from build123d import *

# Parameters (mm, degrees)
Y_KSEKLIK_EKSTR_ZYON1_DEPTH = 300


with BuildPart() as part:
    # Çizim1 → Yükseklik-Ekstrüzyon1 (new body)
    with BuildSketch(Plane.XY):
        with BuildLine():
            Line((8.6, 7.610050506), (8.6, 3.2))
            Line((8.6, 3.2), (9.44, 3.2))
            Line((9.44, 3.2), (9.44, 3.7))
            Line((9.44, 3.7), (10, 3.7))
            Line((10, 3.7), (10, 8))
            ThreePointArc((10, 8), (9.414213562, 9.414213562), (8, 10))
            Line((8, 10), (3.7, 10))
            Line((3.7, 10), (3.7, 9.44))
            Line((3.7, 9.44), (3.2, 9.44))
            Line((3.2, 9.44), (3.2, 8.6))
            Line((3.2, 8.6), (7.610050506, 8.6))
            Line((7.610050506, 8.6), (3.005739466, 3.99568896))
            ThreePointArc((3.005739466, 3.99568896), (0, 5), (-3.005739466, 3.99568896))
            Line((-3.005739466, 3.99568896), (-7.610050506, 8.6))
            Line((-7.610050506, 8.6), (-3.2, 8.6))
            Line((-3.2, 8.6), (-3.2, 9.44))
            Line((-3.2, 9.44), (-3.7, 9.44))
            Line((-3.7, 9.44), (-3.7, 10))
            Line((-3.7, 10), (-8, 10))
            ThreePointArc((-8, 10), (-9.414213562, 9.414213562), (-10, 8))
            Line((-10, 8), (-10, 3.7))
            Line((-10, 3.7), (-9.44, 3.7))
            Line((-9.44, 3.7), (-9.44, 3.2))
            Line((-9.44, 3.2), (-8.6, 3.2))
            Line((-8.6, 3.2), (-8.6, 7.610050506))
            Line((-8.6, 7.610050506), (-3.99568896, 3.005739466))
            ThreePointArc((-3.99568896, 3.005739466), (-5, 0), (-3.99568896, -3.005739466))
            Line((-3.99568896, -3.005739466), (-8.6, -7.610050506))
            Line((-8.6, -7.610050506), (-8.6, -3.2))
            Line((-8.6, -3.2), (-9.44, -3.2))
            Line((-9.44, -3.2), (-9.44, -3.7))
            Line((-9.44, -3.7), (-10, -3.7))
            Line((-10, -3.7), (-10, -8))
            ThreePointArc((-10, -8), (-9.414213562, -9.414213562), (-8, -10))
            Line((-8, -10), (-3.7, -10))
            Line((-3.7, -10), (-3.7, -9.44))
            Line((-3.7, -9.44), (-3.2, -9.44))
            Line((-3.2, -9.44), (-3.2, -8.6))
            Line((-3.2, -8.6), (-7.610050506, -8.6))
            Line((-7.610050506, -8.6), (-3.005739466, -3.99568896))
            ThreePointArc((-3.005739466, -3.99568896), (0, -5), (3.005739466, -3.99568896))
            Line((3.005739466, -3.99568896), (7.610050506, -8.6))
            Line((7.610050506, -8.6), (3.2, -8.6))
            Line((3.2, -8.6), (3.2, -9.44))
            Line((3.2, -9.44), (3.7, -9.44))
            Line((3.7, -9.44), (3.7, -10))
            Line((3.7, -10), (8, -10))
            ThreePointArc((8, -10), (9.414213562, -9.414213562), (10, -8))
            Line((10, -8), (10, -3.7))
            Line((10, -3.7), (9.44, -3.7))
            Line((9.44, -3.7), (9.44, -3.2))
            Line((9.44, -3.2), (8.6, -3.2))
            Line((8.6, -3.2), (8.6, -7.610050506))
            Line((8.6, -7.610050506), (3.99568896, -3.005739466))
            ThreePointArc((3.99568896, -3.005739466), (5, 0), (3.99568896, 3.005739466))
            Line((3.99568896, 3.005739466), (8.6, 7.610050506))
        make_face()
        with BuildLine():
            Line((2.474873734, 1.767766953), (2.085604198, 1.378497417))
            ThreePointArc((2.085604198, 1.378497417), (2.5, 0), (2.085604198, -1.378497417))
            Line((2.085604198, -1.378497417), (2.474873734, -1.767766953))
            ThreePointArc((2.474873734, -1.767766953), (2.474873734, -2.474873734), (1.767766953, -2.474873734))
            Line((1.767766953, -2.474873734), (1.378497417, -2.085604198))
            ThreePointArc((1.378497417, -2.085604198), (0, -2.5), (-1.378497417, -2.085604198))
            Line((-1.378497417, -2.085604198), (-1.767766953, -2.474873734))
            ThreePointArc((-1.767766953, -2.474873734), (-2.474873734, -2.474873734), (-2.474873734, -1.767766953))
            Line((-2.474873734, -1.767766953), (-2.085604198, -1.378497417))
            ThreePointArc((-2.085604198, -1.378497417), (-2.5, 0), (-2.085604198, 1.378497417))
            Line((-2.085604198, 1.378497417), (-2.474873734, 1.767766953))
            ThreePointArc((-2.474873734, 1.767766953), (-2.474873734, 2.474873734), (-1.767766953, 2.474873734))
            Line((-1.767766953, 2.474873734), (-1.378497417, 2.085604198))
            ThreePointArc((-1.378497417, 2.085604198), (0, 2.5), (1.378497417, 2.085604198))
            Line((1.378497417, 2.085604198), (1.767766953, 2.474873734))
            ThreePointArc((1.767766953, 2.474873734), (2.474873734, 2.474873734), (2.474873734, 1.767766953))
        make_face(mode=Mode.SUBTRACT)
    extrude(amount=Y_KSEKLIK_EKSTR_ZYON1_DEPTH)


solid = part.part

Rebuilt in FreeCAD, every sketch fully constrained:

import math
import FreeCAD as App
import Part
import Sketcher
Q = App.Units.Quantity

doc = App.newDocument("Part")
params = doc.addObject("Spreadsheet::Sheet", "Params")
for row, (alias, value) in enumerate([
    ("sketch1_radius", "2 mm"),
    ("sketch1_radius2", "5 mm"),
    ("sketch1_radius3", "0.5 mm"),
    ("sketch1_radius4", "2.5 mm"),
    ("sketch1_width", "4.3 mm"),
    ("pad1_length", "300 mm"),
], start=1):
    params.set(f"A{row}", alias)
    params.set(f"B{row}", "=" + value)
    params.setAlias(f"B{row}", alias)

body = doc.addObject("PartDesign::Body", "Body")

# Sketch on XY plane
sketch1 = body.newObject("Sketcher::SketchObject", "Sketch")
sketch1.AttachmentSupport = (doc.getObject("XY_Plane"), [""])
sketch1.MapMode = "FlatFace"
sketch1.addGeometry([
    Part.LineSegment(App.Vector(8.6, 7.6, 0), App.Vector(8.6, 3.2, 0)),  # 0
    Part.LineSegment(App.Vector(8.6, 3.2, 0), App.Vector(9.4, 3.2, 0)),  # 1
    Part.LineSegment(App.Vector(9.4, 3.2, 0), App.Vector(9.4, 3.7, 0)),  # 2
    Part.LineSegment(App.Vector(9.4, 3.7, 0), App.Vector(10, 3.7, 0)),  # 3
    Part.LineSegment(App.Vector(10, 3.7, 0), App.Vector(10, 8, 0)),  # 4
    Part.ArcOfCircle(Part.Circle(App.Vector(8, 8, 0), App.Vector(0, 0, 1), 2), math.radians(0), math.radians(90)),  # 5
    Part.LineSegment(App.Vector(8, 10, 0), App.Vector(3.7, 10, 0)),  # 6
    Part.LineSegment(App.Vector(3.7, 10, 0), App.Vector(3.7, 9.4, 0)),  # 7
    Part.LineSegment(App.Vector(3.7, 9.4, 0), App.Vector(3.2, 9.4, 0)),  # 8
    Part.LineSegment(App.Vector(3.2, 9.4, 0), App.Vector(3.2, 8.6, 0)),  # 9
    Part.LineSegment(App.Vector(3.2, 8.6, 0), App.Vector(7.6, 8.6, 0)),  # 10
    Part.LineSegment(App.Vector(7.6, 8.6, 0), App.Vector(3, 4, 0)),  # 11
    Part.ArcOfCircle(Part.Circle(App.Vector(0, 0, 0), App.Vector(0, 0, 1), 5), math.radians(53), math.radians(127)),  # 12
    Part.LineSegment(App.Vector(-3, 4, 0), App.Vector(-7.6, 8.6, 0)),  # 13
    Part.LineSegment(App.Vector(-7.6, 8.6, 0), App.Vector(-3.2, 8.6, 0)),  # 14
    Part.LineSegment(App.Vector(-3.2, 8.6, 0), App.Vector(-3.2, 9.4, 0)),  # 15
    Part.LineSegment(App.Vector(-3.2, 9.4, 0), App.Vector(-3.7, 9.4, 0)),  # 16
    Part.LineSegment(App.Vector(-3.7, 9.4, 0), App.Vector(-3.7, 10, 0)),  # 17
    Part.LineSegment(App.Vector(-3.7, 10, 0), App.Vector(-8, 10, 0)),  # 18
    Part.ArcOfCircle(Part.Circle(App.Vector(-8, 8, 0), App.Vector(0, 0, 1), 2), math.radians(90), math.radians(180)),  # 19
    Part.LineSegment(App.Vector(-10, 8, 0), App.Vector(-10, 3.7, 0)),  # 20
    Part.LineSegment(App.Vector(-10, 3.7, 0), App.Vector(-9.4, 3.7, 0)),  # 21
    Part.LineSegment(App.Vector(-9.4, 3.7, 0), App.Vector(-9.4, 3.2, 0)),  # 22
    Part.LineSegment(App.Vector(-9.4, 3.2, 0), App.Vector(-8.6, 3.2, 0)),  # 23
    Part.LineSegment(App.Vector(-8.6, 3.2, 0), App.Vector(-8.6, 7.6, 0)),  # 24
    Part.LineSegment(App.Vector(-8.6, 7.6, 0), App.Vector(-4, 3, 0)),  # 25
    Part.ArcOfCircle(Part.Circle(App.Vector(0, 0, 0), App.Vector(0, 0, 1), 5), math.radians(143), math.radians(217)),  # 26
    Part.LineSegment(App.Vector(-4, -3, 0), App.Vector(-8.6, -7.6, 0)),  # 27
    Part.LineSegment(App.Vector(-8.6, -7.6, 0), App.Vector(-8.6, -3.2, 0)),  # 28
    Part.LineSegment(App.Vector(-8.6, -3.2, 0), App.Vector(-9.4, -3.2, 0)),  # 29
    Part.LineSegment(App.Vector(-9.4, -3.2, 0), App.Vector(-9.4, -3.7, 0)),  # 30
    Part.LineSegment(App.Vector(-9.4, -3.7, 0), App.Vector(-10, -3.7, 0)),  # 31
    Part.LineSegment(App.Vector(-10, -3.7, 0), App.Vector(-10, -8, 0)),  # 32
    Part.ArcOfCircle(Part.Circle(App.Vector(-8, -8, 0), App.Vector(0, 0, 1), 2), math.radians(-180), math.radians(-90)),  # 33
    Part.LineSegment(App.Vector(-8, -10, 0), App.Vector(-3.7, -10, 0)),  # 34
    Part.LineSegment(App.Vector(-3.7, -10, 0), App.Vector(-3.7, -9.4, 0)),  # 35
    Part.LineSegment(App.Vector(-3.7, -9.4, 0), App.Vector(-3.2, -9.4, 0)),  # 36
    Part.LineSegment(App.Vector(-3.2, -9.4, 0), App.Vector(-3.2, -8.6, 0)),  # 37
    Part.LineSegment(App.Vector(-3.2, -8.6, 0), App.Vector(-7.6, -8.6, 0)),  # 38
    Part.LineSegment(App.Vector(-7.6, -8.6, 0), App.Vector(-3, -4, 0)),  # 39
    Part.ArcOfCircle(Part.Circle(App.Vector(0, 0, 0), App.Vector(0, 0, 1), 5), math.radians(-127), math.radians(-53)),  # 40
    Part.LineSegment(App.Vector(3, -4, 0), App.Vector(7.6, -8.6, 0)),  # 41
    Part.LineSegment(App.Vector(7.6, -8.6, 0), App.Vector(3.2, -8.6, 0)),  # 42
    Part.LineSegment(App.Vector(3.2, -8.6, 0), App.Vector(3.2, -9.4, 0)),  # 43
    Part.LineSegment(App.Vector(3.2, -9.4, 0), App.Vector(3.7, -9.4, 0)),  # 44
    Part.LineSegment(App.Vector(3.7, -9.4, 0), App.Vector(3.7, -10, 0)),  # 45
    Part.LineSegment(App.Vector(3.7, -10, 0), App.Vector(8, -10, 0)),  # 46
    Part.ArcOfCircle(Part.Circle(App.Vector(8, -8, 0), App.Vector(0, 0, 1), 2), math.radians(-90), math.radians(0)),  # 47
    Part.LineSegment(App.Vector(10, -8, 0), App.Vector(10, -3.7, 0)),  # 48
    Part.LineSegment(App.Vector(10, -3.7, 0), App.Vector(9.4, -3.7, 0)),  # 49
    Part.LineSegment(App.Vector(9.4, -3.7, 0), App.Vector(9.4, -3.2, 0)),  # 50
    Part.LineSegment(App.Vector(9.4, -3.2, 0), App.Vector(8.6, -3.2, 0)),  # 51
    Part.LineSegment(App.Vector(8.6, -3.2, 0), App.Vector(8.6, -7.6, 0)),  # 52
    Part.LineSegment(App.Vector(8.6, -7.6, 0), App.Vector(4, -3, 0)),  # 53
    Part.ArcOfCircle(Part.Circle(App.Vector(0, 0, 0), App.Vector(0, 0, 1), 5), math.radians(-37), math.radians(37)),  # 54
    Part.LineSegment(App.Vector(4, 3, 0), App.Vector(8.6, 7.6, 0)),  # 55
    Part.ArcOfCircle(Part.Circle(App.Vector(2.1, 2.1, 0), App.Vector(0, 0, 1), 0.5), math.radians(-45), math.radians(135)),  # 56
    Part.LineSegment(App.Vector(2.5, 1.8, 0), App.Vector(2.1, 1.4, 0)),  # 57
    Part.ArcOfCircle(Part.Circle(App.Vector(0, 0, 0), App.Vector(0, 0, 1), 2.5), math.radians(-33), math.radians(33)),  # 58
    Part.LineSegment(App.Vector(2.1, -1.4, 0), App.Vector(2.5, -1.8, 0)),  # 59
    Part.ArcOfCircle(Part.Circle(App.Vector(2.1, -2.1, 0), App.Vector(0, 0, 1), 0.5), math.radians(-135), math.radians(45)),  # 60
    Part.LineSegment(App.Vector(1.8, -2.5, 0), App.Vector(1.4, -2.1, 0)),  # 61
    Part.ArcOfCircle(Part.Circle(App.Vector(0, 0, 0), App.Vector(0, 0, 1), 2.5), math.radians(-123), math.radians(-57)),  # 62
    Part.LineSegment(App.Vector(-1.4, -2.1, 0), App.Vector(-1.8, -2.5, 0)),  # 63
    Part.ArcOfCircle(Part.Circle(App.Vector(-2.1, -2.1, 0), App.Vector(0, 0, 1), 0.5), math.radians(135), math.radians(315)),  # 64
    Part.LineSegment(App.Vector(-2.5, -1.8, 0), App.Vector(-2.1, -1.4, 0)),  # 65
    Part.ArcOfCircle(Part.Circle(App.Vector(0, 0, 0), App.Vector(0, 0, 1), 2.5), math.radians(147), math.radians(213)),  # 66
    Part.LineSegment(App.Vector(-2.1, 1.4, 0), App.Vector(-2.5, 1.8, 0)),  # 67
    Part.ArcOfCircle(Part.Circle(App.Vector(-2.1, 2.1, 0), App.Vector(0, 0, 1), 0.5), math.radians(45), math.radians(225)),  # 68
    Part.LineSegment(App.Vector(-1.8, 2.5, 0), App.Vector(-1.4, 2.1, 0)),  # 69
    Part.ArcOfCircle(Part.Circle(App.Vector(0, 0, 0), App.Vector(0, 0, 1), 2.5), math.radians(57), math.radians(123)),  # 70
    Part.LineSegment(App.Vector(1.4, 2.1, 0), App.Vector(1.8, 2.5, 0)),  # 71
], False)
sketch1.addConstraint([
    Sketcher.Constraint("Coincident", 0, 2, 1, 1),
    Sketcher.Constraint("Coincident", 1, 2, 2, 1),
    Sketcher.Constraint("Coincident", 2, 2, 3, 1),
    Sketcher.Constraint("Coincident", 3, 2, 4, 1),
    Sketcher.Constraint("Tangent", 4, 2, 5, 1),
    Sketcher.Constraint("Tangent", 5, 2, 6, 1),
    Sketcher.Constraint("Coincident", 6, 2, 7, 1),
    Sketcher.Constraint("Coincident", 7, 2, 8, 1),
    Sketcher.Constraint("Coincident", 8, 2, 9, 1),
    Sketcher.Constraint("Coincident", 9, 2, 10, 1),
    Sketcher.Constraint("Coincident", 10, 2, 11, 1),
    Sketcher.Constraint("Coincident", 11, 2, 12, 1),
    Sketcher.Constraint("Coincident", 12, 2, 13, 1),
    Sketcher.Constraint("Coincident", 13, 2, 14, 1),
    Sketcher.Constraint("Coincident", 14, 2, 15, 1),
    Sketcher.Constraint("Coincident", 15, 2, 16, 1),
    Sketcher.Constraint("Coincident", 16, 2, 17, 1),
    Sketcher.Constraint("Coincident", 17, 2, 18, 1),
    Sketcher.Constraint("Tangent", 18, 2, 19, 1),
    Sketcher.Constraint("Tangent", 19, 2, 20, 1),
    Sketcher.Constraint("Coincident", 20, 2, 21, 1),
    Sketcher.Constraint("Coincident", 21, 2, 22, 1),
    Sketcher.Constraint("Coincident", 22, 2, 23, 1),
    Sketcher.Constraint("Coincident", 23, 2, 24, 1),
    Sketcher.Constraint("Coincident", 24, 2, 25, 1),
    Sketcher.Constraint("Coincident", 25, 2, 26, 1),
    Sketcher.Constraint("Coincident", 26, 2, 27, 1),
    Sketcher.Constraint("Coincident", 27, 2, 28, 1),
    Sketcher.Constraint("Coincident", 28, 2, 29, 1),
    Sketcher.Constraint("Coincident", 29, 2, 30, 1),
    Sketcher.Constraint("Coincident", 30, 2, 31, 1),
    Sketcher.Constraint("Coincident", 31, 2, 32, 1),
    Sketcher.Constraint("Tangent", 32, 2, 33, 1),
    Sketcher.Constraint("Tangent", 33, 2, 34, 1),
    Sketcher.Constraint("Coincident", 34, 2, 35, 1),
    Sketcher.Constraint("Coincident", 35, 2, 36, 1),
    Sketcher.Constraint("Coincident", 36, 2, 37, 1),
    Sketcher.Constraint("Coincident", 37, 2, 38, 1),
    Sketcher.Constraint("Coincident", 38, 2, 39, 1),
    Sketcher.Constraint("Coincident", 39, 2, 40, 1),
    Sketcher.Constraint("Coincident", 40, 2, 41, 1),
    Sketcher.Constraint("Coincident", 41, 2, 42, 1),
    Sketcher.Constraint("Coincident", 42, 2, 43, 1),
    Sketcher.Constraint("Coincident", 43, 2, 44, 1),
    Sketcher.Constraint("Coincident", 44, 2, 45, 1),
    Sketcher.Constraint("Coincident", 45, 2, 46, 1),
    Sketcher.Constraint("Tangent", 46, 2, 47, 1),
    Sketcher.Constraint("Tangent", 47, 2, 48, 1),
    Sketcher.Constraint("Coincident", 48, 2, 49, 1),
    Sketcher.Constraint("Coincident", 49, 2, 50, 1),
    Sketcher.Constraint("Coincident", 50, 2, 51, 1),
    Sketcher.Constraint("Coincident", 51, 2, 52, 1),
    Sketcher.Constraint("Coincident", 52, 2, 53, 1),
    Sketcher.Constraint("Coincident", 53, 2, 54, 1),
    Sketcher.Constraint("Coincident", 54, 2, 55, 1),
    Sketcher.Constraint("Coincident", 55, 2, 0, 1),
    Sketcher.Constraint("Tangent", 56, 1, 57, 1),
    Sketcher.Constraint("Coincident", 57, 2, 58, 2),
    Sketcher.Constraint("Coincident", 58, 1, 59, 1),
    Sketcher.Constraint("Tangent", 59, 2, 60, 2),
    Sketcher.Constraint("Tangent", 60, 1, 61, 1),
    Sketcher.Constraint("Coincident", 61, 2, 62, 2),
    Sketcher.Constraint("Coincident", 62, 1, 63, 1),
    Sketcher.Constraint("Tangent", 63, 2, 64, 2),
    Sketcher.Constraint("Tangent", 64, 1, 65, 1),
    Sketcher.Constraint("Coincident", 65, 2, 66, 2),
    Sketcher.Constraint("Coincident", 66, 1, 67, 1),
    Sketcher.Constraint("Tangent", 67, 2, 68, 2),
    Sketcher.Constraint("Tangent", 68, 1, 69, 1),
    Sketcher.Constraint("Coincident", 69, 2, 70, 2),
    Sketcher.Constraint("Coincident", 70, 1, 71, 1),
    Sketcher.Constraint("Tangent", 71, 2, 56, 2),
    Sketcher.Constraint("Vertical", 0),
    Sketcher.Constraint("Horizontal", 1),
    Sketcher.Constraint("Vertical", 2),
    Sketcher.Constraint("Horizontal", 3),
    Sketcher.Constraint("Vertical", 4),
    Sketcher.Constraint("Horizontal", 6),
    Sketcher.Constraint("Vertical", 7),
    Sketcher.Constraint("Horizontal", 8),
    Sketcher.Constraint("Vertical", 9),
    Sketcher.Constraint("Horizontal", 10),
    Sketcher.Constraint("Horizontal", 14),
    Sketcher.Constraint("Vertical", 15),
    Sketcher.Constraint("Horizontal", 16),
    Sketcher.Constraint("Vertical", 17),
    Sketcher.Constraint("Horizontal", 18),
    Sketcher.Constraint("Vertical", 20),
    Sketcher.Constraint("Horizontal", 21),
    Sketcher.Constraint("Vertical", 22),
    Sketcher.Constraint("Horizontal", 23),
    Sketcher.Constraint("Vertical", 24),
    Sketcher.Constraint("Vertical", 28),
    Sketcher.Constraint("Horizontal", 29),
    Sketcher.Constraint("Vertical", 30),
    Sketcher.Constraint("Horizontal", 31),
    Sketcher.Constraint("Vertical", 32),
    Sketcher.Constraint("Horizontal", 34),
    Sketcher.Constraint("Vertical", 35),
    Sketcher.Constraint("Horizontal", 36),
    Sketcher.Constraint("Vertical", 37),
    Sketcher.Constraint("Horizontal", 38),
    Sketcher.Constraint("Horizontal", 42),
    Sketcher.Constraint("Vertical", 43),
    Sketcher.Constraint("Horizontal", 44),
    Sketcher.Constraint("Vertical", 45),
    Sketcher.Constraint("Horizontal", 46),
    Sketcher.Constraint("Vertical", 48),
    Sketcher.Constraint("Horizontal", 49),
    Sketcher.Constraint("Vertical", 50),
    Sketcher.Constraint("Horizontal", 51),
    Sketcher.Constraint("Vertical", 52),
    Sketcher.Constraint("Coincident", 12, 3, -1, 1),
    Sketcher.Constraint("Coincident", 26, 3, -1, 1),
    Sketcher.Constraint("Coincident", 40, 3, -1, 1),
    Sketcher.Constraint("Coincident", 54, 3, -1, 1),
    Sketcher.Constraint("Coincident", 58, 3, -1, 1),
    Sketcher.Constraint("Coincident", 62, 3, -1, 1),
    Sketcher.Constraint("Coincident", 66, 3, -1, 1),
    Sketcher.Constraint("Coincident", 70, 3, -1, 1),
    Sketcher.Constraint("Equal", 5, 19),
    Sketcher.Constraint("Equal", 12, 26),
    Sketcher.Constraint("Equal", 19, 33),
    Sketcher.Constraint("Equal", 26, 40),
    Sketcher.Constraint("Equal", 33, 47),
    Sketcher.Constraint("Equal", 40, 54),
    Sketcher.Constraint("Equal", 56, 60),
    Sketcher.Constraint("Equal", 58, 62),
    Sketcher.Constraint("Equal", 60, 64),
    Sketcher.Constraint("Equal", 62, 66),
    Sketcher.Constraint("Equal", 64, 68),
    Sketcher.Constraint("Equal", 66, 70),
    Sketcher.Constraint("Symmetric", 5, 3, 33, 3, -1, 1),
    Sketcher.Constraint("Symmetric", 19, 3, 47, 3, -1, 1),
    Sketcher.Constraint("Symmetric", 56, 3, 64, 3, -1, 1),
    Sketcher.Constraint("Symmetric", 60, 3, 68, 3, -1, 1),
    Sketcher.Constraint("Symmetric", 0, 2, 28, 2, -1, 1),
    Sketcher.Constraint("Symmetric", 2, 2, 30, 2, -1, 1),
    Sketcher.Constraint("Symmetric", 7, 2, 35, 2, -1, 1),
    Sketcher.Constraint("Symmetric", 9, 2, 37, 2, -1, 1),
    Sketcher.Constraint("Symmetric", 13, 2, 41, 2, -1, 1),
    Sketcher.Constraint("Symmetric", 15, 2, 43, 2, -1, 1),
    Sketcher.Constraint("Symmetric", 21, 2, 49, 2, -1, 1),
    Sketcher.Constraint("Symmetric", 23, 2, 51, 2, -1, 1),
    Sketcher.Constraint("Symmetric", 5, 3, 19, 3, -2),
    Sketcher.Constraint("Symmetric", 60, 3, 64, 3, -2),
    Sketcher.Constraint("Symmetric", 10, 2, 13, 2, -2),
    Sketcher.Constraint("Symmetric", 8, 2, 15, 2, -2),
    Sketcher.Constraint("Symmetric", 2, 2, 21, 2, -2),
    Sketcher.Constraint("Symmetric", 0, 2, 23, 2, -2),
    Sketcher.Constraint("Perpendicular", 11, 13),
    Sketcher.Constraint("Parallel", 13, 25),
    Sketcher.Constraint("Perpendicular", 25, 27),
    Sketcher.Constraint("Parallel", 27, 39),
    Sketcher.Constraint("Perpendicular", 39, 41),
    Sketcher.Constraint("Parallel", 41, 53),
    Sketcher.Constraint("Perpendicular", 53, 55),
    Sketcher.Constraint("Parallel", 55, 57),
    Sketcher.Constraint("Perpendicular", 57, 59),
    Sketcher.Constraint("Parallel", 59, 61),
    Sketcher.Constraint("Perpendicular", 61, 63),
    Sketcher.Constraint("Parallel", 63, 65),
    Sketcher.Constraint("Perpendicular", 65, 67),
    Sketcher.Constraint("Parallel", 67, 69),
    Sketcher.Constraint("Perpendicular", 69, 71),
    Sketcher.Constraint("Horizontal", 11, 2, 12, 2),
    Sketcher.Constraint("Horizontal", 39, 2, 40, 2),
    Sketcher.Constraint("Horizontal", 27, 2, 52, 2),
    Sketcher.Constraint("Horizontal", 25, 2, 54, 2),
    Sketcher.Constraint("Vertical", 25, 2, 26, 2),
    Sketcher.Constraint("Vertical", 17, 2, 34, 2),
    Sketcher.Constraint("Vertical", 7, 2, 44, 2),
    Sketcher.Constraint("Equal", 42, 0),
    Sketcher.Constraint("Equal", 44, 2),
    Sketcher.Constraint("Equal", 46, 4),
    Sketcher.Constraint("Equal", 49, 7),
    Sketcher.Constraint("Equal", 51, 9),
    Sketcher.Constraint("Equal", 13, 25),
    Sketcher.Constraint("Equal", 59, 61),
    Sketcher.Constraint("Radius", 5, Q("2 mm")),
    Sketcher.Constraint("Radius", 12, Q("5 mm")),
    Sketcher.Constraint("Radius", 56, Q("0.5 mm")),
    Sketcher.Constraint("Radius", 58, Q("2.5 mm")),
    Sketcher.Constraint("DistanceX", 6, 2, 6, 1, Q("4.3 mm")),
    Sketcher.Constraint("DistanceX", 8, 2, 8, 1, Q("0.5 mm")),
    Sketcher.Constraint("DistanceX", -1, 1, 5, 3, Q("8 mm")),
    Sketcher.Constraint("DistanceX", 1, 1, 1, 2, Q("0.84 mm")),
    Sketcher.Constraint("DistanceX", 3, 1, 3, 2, Q("0.56 mm")),
    Sketcher.Constraint("DistanceX", 10, 1, 10, 2, Q("4.410051 mm")),
    Sketcher.Constraint("Distance", 57, Q("0.55051 mm")),
])
sketch1.setExpression("Constraints[179]", "Params.sketch1_radius")
sketch1.setExpression("Constraints[180]", "Params.sketch1_radius2")
sketch1.setExpression("Constraints[181]", "Params.sketch1_radius3")
sketch1.setExpression("Constraints[182]", "Params.sketch1_radius4")
sketch1.setExpression("Constraints[183]", "Params.sketch1_width")
pad1 = body.newObject("PartDesign::Pad", "Pad")
pad1.Profile = sketch1
pad1.setExpression("Length", "Params.pad1_length")

doc.recompute()
